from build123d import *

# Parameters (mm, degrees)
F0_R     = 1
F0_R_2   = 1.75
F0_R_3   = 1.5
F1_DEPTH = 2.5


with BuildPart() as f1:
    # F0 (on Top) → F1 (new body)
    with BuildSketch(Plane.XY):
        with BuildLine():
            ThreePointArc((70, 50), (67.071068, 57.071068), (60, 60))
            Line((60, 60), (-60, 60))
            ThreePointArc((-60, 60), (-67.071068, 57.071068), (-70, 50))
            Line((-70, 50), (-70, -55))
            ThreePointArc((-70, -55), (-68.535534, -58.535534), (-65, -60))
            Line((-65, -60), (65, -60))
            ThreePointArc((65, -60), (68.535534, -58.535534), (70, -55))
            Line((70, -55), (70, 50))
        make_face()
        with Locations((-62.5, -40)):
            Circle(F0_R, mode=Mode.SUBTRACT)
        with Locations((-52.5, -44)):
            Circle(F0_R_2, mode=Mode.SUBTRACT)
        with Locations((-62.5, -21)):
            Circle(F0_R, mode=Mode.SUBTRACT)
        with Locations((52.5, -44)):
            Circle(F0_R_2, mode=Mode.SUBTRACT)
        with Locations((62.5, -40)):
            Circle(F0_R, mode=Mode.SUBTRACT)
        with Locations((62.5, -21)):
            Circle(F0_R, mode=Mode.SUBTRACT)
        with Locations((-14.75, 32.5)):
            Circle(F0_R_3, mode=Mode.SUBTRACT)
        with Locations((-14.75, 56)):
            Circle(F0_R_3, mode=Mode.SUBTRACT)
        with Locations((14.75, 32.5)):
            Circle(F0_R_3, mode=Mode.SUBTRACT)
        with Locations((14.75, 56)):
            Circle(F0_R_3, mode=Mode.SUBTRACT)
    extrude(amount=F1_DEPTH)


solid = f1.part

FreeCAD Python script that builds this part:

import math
import FreeCAD as App
import Part
import Sketcher
from FreeCAD import Vector
Q = App.Units.Quantity

doc = App.newDocument("Part")
params = doc.addObject("Spreadsheet::Sheet", "Params")
for row, (alias, value) in enumerate([
    ("sketch1_diameter", "2 mm"),
    ("sketch1_diameter2", "3 mm"),
    ("sketch1_radius", "9.999999 mm"),
    ("sketch1_radius2", "5 mm"),
    ("sketch1_diameter3", "3.5 mm"),
    ("pad1_length", "2.5 mm"),
], start=1):
    params.set(f"A{row}", alias)
    params.set(f"B{row}", "=" + value)
    params.setAlias(f"B{row}", alias)

body = doc.addObject("PartDesign::Body", "Body")

sketch1 = body.newObject("Sketcher::SketchObject", "Sketch")
sketch1.AttachmentSupport = (doc.getObject("XY_Plane"), [""])
sketch1.MapMode = "FlatFace"
sketch1.addGeometry([
    Part.ArcOfCircle(Part.Circle(Vector(60, 50, 0), Vector(0, 0, 1), 10), math.radians(0), math.radians(90)),
    Part.LineSegment(Vector(60, 60, 0), Vector(-60, 60, 0)),
    Part.ArcOfCircle(Part.Circle(Vector(-60, 50, 0), Vector(0, 0, 1), 10), math.radians(90), math.radians(180)),
    Part.LineSegment(Vector(-70, 50, 0), Vector(-70, -55, 0)),
    Part.ArcOfCircle(Part.Circle(Vector(-65, -55, 0), Vector(0, 0, 1), 5), math.radians(180), math.radians(270)),
    Part.LineSegment(Vector(-65, -60, 0), Vector(65, -60, 0)),
    Part.ArcOfCircle(Part.Circle(Vector(65, -55, 0), Vector(0, 0, 1), 5), math.radians(-90), math.radians(0)),
    Part.LineSegment(Vector(70, -55, 0), Vector(70, 50, 0)),
    Part.Circle(Vector(-62.5, -40, 0), Vector(0, 0, 1), 1),
    Part.Circle(Vector(-52.5, -44, 0), Vector(0, 0, 1), 1.8),
    Part.Circle(Vector(-62.5, -21, 0), Vector(0, 0, 1), 1),
    Part.Circle(Vector(52.5, -44, 0), Vector(0, 0, 1), 1.8),
    Part.Circle(Vector(62.5, -40, 0), Vector(0, 0, 1), 1),
    Part.Circle(Vector(62.5, -21, 0), Vector(0, 0, 1), 1),
    Part.Circle(Vector(-14.8, 32.5, 0), Vector(0, 0, 1), 1.5),
    Part.Circle(Vector(-14.8, 56, 0), Vector(0, 0, 1), 1.5),
    Part.Circle(Vector(14.8, 32.5, 0), Vector(0, 0, 1), 1.5),
    Part.Circle(Vector(14.8, 56, 0), Vector(0, 0, 1), 1.5),
], False)
sketch1.addConstraint([
    Sketcher.Constraint("Tangent", 0, 2, 1, 1),
    Sketcher.Constraint("Tangent", 1, 2, 2, 1),
    Sketcher.Constraint("Tangent", 2, 2, 3, 1),
    Sketcher.Constraint("Tangent", 3, 2, 4, 1),
    Sketcher.Constraint("Tangent", 4, 2, 5, 1),
    Sketcher.Constraint("Tangent", 5, 2, 6, 1),
    Sketcher.Constraint("Tangent", 6, 2, 7, 1),
    Sketcher.Constraint("Tangent", 7, 2, 0, 1),
    Sketcher.Constraint("Horizontal", 1),
    Sketcher.Constraint("Vertical", 3),
    Sketcher.Constraint("Horizontal", 5),
    Sketcher.Constraint("Vertical", 7),
    Sketcher.Constraint("Equal", 0, 2),
    Sketcher.Constraint("Equal", 4, 6),
    Sketcher.Constraint("Equal", 8, 10),
    Sketcher.Constraint("Equal", 9, 11),
    Sketcher.Constraint("Equal", 10, 12),
    Sketcher.Constraint("Equal", 12, 13),
    Sketcher.Constraint("Equal", 14, 15),
    Sketcher.Constraint("Equal", 15, 16),
    Sketcher.Constraint("Equal", 16, 17),
    Sketcher.Constraint("Symmetric", 9, 3, 11, 3, -2),
    Sketcher.Constraint("Symmetric", 8, 3, 12, 3, -2),
    Sketcher.Constraint("Symmetric", 10, 3, 13, 3, -2),
    Sketcher.Constraint("Symmetric", 14, 3, 16, 3, -2),
    Sketcher.Constraint("Symmetric", 15, 3, 17, 3, -2),
    Sketcher.Constraint("Vertical", 8, 3, 10, 3),
    Sketcher.Constraint("Vertical", 14, 3, 15, 3),
    Sketcher.Constraint("Diameter", 8, Q("2 mm")),
    Sketcher.Constraint("Diameter", 14, Q("3 mm")),
    Sketcher.Constraint("Radius", 0, Q("9.999999 mm")),
    Sketcher.Constraint("Radius", 4, Q("5 mm")),
    Sketcher.Constraint("Diameter", 9, Q("3.5 mm")),
    Sketcher.Constraint("DistanceX", 1, 2, 1, 1, Q("120 mm")),
    Sketcher.Constraint("DistanceY", 3, 2, 3, 1, Q("105 mm")),
    Sketcher.Constraint("DistanceX", -1, 1, 0, 3, Q("60.000001 mm")),
    Sketcher.Constraint("DistanceY", -1, 1, 0, 3, Q("50.000001 mm")),
    Sketcher.Constraint("DistanceY", 8, 3, -1, 1, Q("40 mm")),
    Sketcher.Constraint("DistanceY", 9, 3, -1, 1, Q("44 mm")),
    Sketcher.Constraint("DistanceY", 10, 3, -1, 1, Q("21 mm")),
    Sketcher.Constraint("DistanceY", -1, 1, 15, 3, Q("56 mm")),
    Sketcher.Constraint("DistanceX", 8, 3, 9, 3, Q("10 mm")),
    Sketcher.Constraint("DistanceX", 9, 3, 11, 3, Q("105 mm")),
    Sketcher.Constraint("DistanceY", -1, 1, 14, 3, Q("32.5 mm")),
    Sketcher.Constraint("DistanceX", 14, 3, 16, 3, Q("29.5 mm")),
])
sketch1.setExpression("Constraints[28]", "Params.sketch1_diameter")
sketch1.setExpression("Constraints[29]", "Params.sketch1_diameter2")
sketch1.setExpression("Constraints[30]", "Params.sketch1_radius")
sketch1.setExpression("Constraints[31]", "Params.sketch1_radius2")
sketch1.setExpression("Constraints[32]", "Params.sketch1_diameter3")
pad1 = body.newObject("PartDesign::Pad", "Pad")
pad1.Profile = sketch1
pad1.setExpression("Length", "Params.pad1_length")

doc.recompute()
